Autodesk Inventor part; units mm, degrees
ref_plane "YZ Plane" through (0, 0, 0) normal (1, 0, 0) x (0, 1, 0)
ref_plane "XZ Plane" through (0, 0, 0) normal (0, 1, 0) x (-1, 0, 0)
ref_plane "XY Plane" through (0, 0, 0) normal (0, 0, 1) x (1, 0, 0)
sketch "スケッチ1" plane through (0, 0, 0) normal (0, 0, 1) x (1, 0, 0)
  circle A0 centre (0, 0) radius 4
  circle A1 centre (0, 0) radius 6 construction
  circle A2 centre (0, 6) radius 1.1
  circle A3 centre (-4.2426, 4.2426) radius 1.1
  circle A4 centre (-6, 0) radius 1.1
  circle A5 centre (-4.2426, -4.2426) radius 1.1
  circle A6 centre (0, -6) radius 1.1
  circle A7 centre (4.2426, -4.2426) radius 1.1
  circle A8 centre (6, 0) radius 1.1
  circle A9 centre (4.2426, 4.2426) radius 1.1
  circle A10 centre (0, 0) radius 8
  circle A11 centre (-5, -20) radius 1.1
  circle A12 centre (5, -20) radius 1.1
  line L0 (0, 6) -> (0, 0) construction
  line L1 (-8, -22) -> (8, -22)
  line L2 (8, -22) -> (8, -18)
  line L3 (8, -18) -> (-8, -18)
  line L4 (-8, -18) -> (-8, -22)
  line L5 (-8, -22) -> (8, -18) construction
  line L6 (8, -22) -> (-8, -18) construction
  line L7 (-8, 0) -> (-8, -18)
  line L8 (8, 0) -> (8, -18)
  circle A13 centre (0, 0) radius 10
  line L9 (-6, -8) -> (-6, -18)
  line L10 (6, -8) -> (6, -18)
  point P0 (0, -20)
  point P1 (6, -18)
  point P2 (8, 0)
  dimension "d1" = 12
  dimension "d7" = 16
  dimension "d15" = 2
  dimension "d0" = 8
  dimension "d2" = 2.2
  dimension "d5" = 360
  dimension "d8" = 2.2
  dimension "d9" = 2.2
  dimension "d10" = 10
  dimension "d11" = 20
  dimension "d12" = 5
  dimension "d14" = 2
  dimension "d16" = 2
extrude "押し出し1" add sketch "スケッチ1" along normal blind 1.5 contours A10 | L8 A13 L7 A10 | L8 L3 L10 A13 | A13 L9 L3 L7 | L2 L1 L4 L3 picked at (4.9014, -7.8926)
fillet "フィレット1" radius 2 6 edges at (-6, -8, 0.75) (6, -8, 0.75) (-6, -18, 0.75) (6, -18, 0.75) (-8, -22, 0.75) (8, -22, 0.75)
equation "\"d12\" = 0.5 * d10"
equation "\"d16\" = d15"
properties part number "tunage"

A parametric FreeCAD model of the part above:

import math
import FreeCAD as App
import Part
import Sketcher
Q = App.Units.Quantity


def edges_at(feature, points):
    """Names of the edges that pass closest to the given points."""
    edges = feature.Shape.Edges
    near = lambda p: min(range(len(edges)), key=lambda i: edges[i].distToShape(Part.Vertex(*p))[0])
    return sorted({f"Edge{near(p) + 1}" for p in points})

doc = App.newDocument("Part")
params = doc.addObject("Spreadsheet::Sheet", "Params")
for row, (alias, value) in enumerate([
    ("sketch1_diameter", "8 mm"),
    ("sketch1_radius", "8 mm"),
    ("sketch1_radius2", "10 mm"),
    ("sketch1_diameter2", "2.2 mm"),
    ("sketch1_width", "12 mm"),
    ("pad1_length", "1.5 mm"),
    ("fillet_radius", "2 mm"),
], start=1):
    params.set(f"A{row}", alias)
    params.set(f"B{row}", "=" + value)
    params.setAlias(f"B{row}", alias)

body = doc.addObject("PartDesign::Body", "Body")

sketch1 = body.newObject("Sketcher::SketchObject", "Sketch")
sketch1.AttachmentSupport = (doc.getObject("XY_Plane"), [""])
sketch1.MapMode = "FlatFace"
sketch1.addGeometry(Part.ArcOfCircle(Part.Circle(App.Vector(0, 0, 0), App.Vector(0, 0, 1), 8), math.radians(0), math.radians(180)), False)
sketch1.addGeometry(Part.LineSegment(App.Vector(-8, 0, 0), App.Vector(-8, -22, 0)), False)
sketch1.addGeometry(Part.LineSegment(App.Vector(-8, -22, 0), App.Vector(8, -22, 0)), False)
sketch1.addGeometry(Part.LineSegment(App.Vector(8, -22, 0), App.Vector(8, 0, 0)), False)
sketch1.addGeometry(Part.Circle(App.Vector(-6, 0, 0), App.Vector(0, 0, 1), 1.1), False)
sketch1.addGeometry(Part.Circle(App.Vector(-4.2, -4.2, 0), App.Vector(0, 0, 1), 1.1), False)
sketch1.addGeometry(Part.Circle(App.Vector(-4.2, 4.2, 0), App.Vector(0, 0, 1), 1.1), False)
sketch1.addGeometry(Part.Circle(App.Vector(0, -6, 0), App.Vector(0, 0, 1), 1.1), False)
sketch1.addGeometry(Part.Circle(App.Vector(4.2, -4.2, 0), App.Vector(0, 0, 1), 1.1), False)
sketch1.addGeometry(Part.Circle(App.Vector(0, 0, 0), App.Vector(0, 0, 1), 4), False)
sketch1.addGeometry(Part.Circle(App.Vector(6, 0, 0), App.Vector(0, 0, 1), 1.1), False)
sketch1.addGeometry(Part.Circle(App.Vector(4.2, 4.2, 0), App.Vector(0, 0, 1), 1.1), False)
sketch1.addGeometry(Part.Circle(App.Vector(0, 6, 0), App.Vector(0, 0, 1), 1.1), False)
sketch1.addGeometry(Part.ArcOfCircle(Part.Circle(App.Vector(0, 0, 0), App.Vector(0, 0, 1), 10), math.radians(-127), math.radians(-53)), False)
sketch1.addGeometry(Part.LineSegment(App.Vector(6, -8, 0), App.Vector(6, -18, 0)), False)
sketch1.addGeometry(Part.LineSegment(App.Vector(6, -18, 0), App.Vector(-6, -18, 0)), False)
sketch1.addGeometry(Part.LineSegment(App.Vector(-6, -18, 0), App.Vector(-6, -8, 0)), False)
sketch1.addGeometry(Part.Circle(App.Vector(-5, -20, 0), App.Vector(0, 0, 1), 1.1), False)
sketch1.addGeometry(Part.Circle(App.Vector(5, -20, 0), App.Vector(0, 0, 1), 1.1), False)
sketch1.addConstraint(Sketcher.Constraint("Tangent", 0, 2, 1, 1))
sketch1.addConstraint(Sketcher.Constraint("Coincident", 1, 2, 2, 1))
sketch1.addConstraint(Sketcher.Constraint("Coincident", 2, 2, 3, 1))
sketch1.addConstraint(Sketcher.Constraint("Tangent", 3, 2, 0, 1))
sketch1.addConstraint(Sketcher.Constraint("Coincident", 13, 2, 14, 1))
sketch1.addConstraint(Sketcher.Constraint("Coincident", 14, 2, 15, 1))
sketch1.addConstraint(Sketcher.Constraint("Coincident", 15, 2, 16, 1))
sketch1.addConstraint(Sketcher.Constraint("Coincident", 16, 2, 13, 1))
sketch1.addConstraint(Sketcher.Constraint("Vertical", 1))
sketch1.addConstraint(Sketcher.Constraint("Horizontal", 2))
sketch1.addConstraint(Sketcher.Constraint("Vertical", 3))
sketch1.addConstraint(Sketcher.Constraint("Vertical", 14))
sketch1.addConstraint(Sketcher.Constraint("Horizontal", 15))
sketch1.addConstraint(Sketcher.Constraint("Vertical", 16))
sketch1.addConstraint(Sketcher.Constraint("Coincident", 0, 3, -1, 1))
sketch1.addConstraint(Sketcher.Constraint("Coincident", 9, 3, -1, 1))
sketch1.addConstraint(Sketcher.Constraint("Coincident", 13, 3, -1, 1))
sketch1.addConstraint(Sketcher.Constraint("Equal", 4, 5))
sketch1.addConstraint(Sketcher.Constraint("Equal", 5, 6))
sketch1.addConstraint(Sketcher.Constraint("Equal", 6, 7))
sketch1.addConstraint(Sketcher.Constraint("Equal", 7, 8))
sketch1.addConstraint(Sketcher.Constraint("Equal", 8, 10))
sketch1.addConstraint(Sketcher.Constraint("Equal", 10, 11))
sketch1.addConstraint(Sketcher.Constraint("Equal", 11, 12))
sketch1.addConstraint(Sketcher.Constraint("Equal", 12, 17))
sketch1.addConstraint(Sketcher.Constraint("Equal", 17, 18))
sketch1.addConstraint(Sketcher.Constraint("Symmetric", 6, 3, 8, 3, -1, 1))
sketch1.addConstraint(Sketcher.Constraint("Symmetric", 4, 3, 10, 3, -1, 1))
sketch1.addConstraint(Sketcher.Constraint("Symmetric", 5, 3, 11, 3, -1, 1))
sketch1.addConstraint(Sketcher.Constraint("Symmetric", 7, 3, 12, 3, -1, 1))
sketch1.addConstraint(Sketcher.Constraint("Symmetric", 5, 3, 8, 3, -2))
sketch1.addConstraint(Sketcher.Constraint("Symmetric", 17, 3, 18, 3, -2))
sketch1.addConstraint(Sketcher.Constraint("PointOnObject", 4, 3, -1))
sketch1.addConstraint(Sketcher.Constraint("PointOnObject", 7, 3, -2))
sketch1.addConstraint(Sketcher.Constraint("Horizontal", 13, 2, 16, 2))
sketch1.addConstraint(Sketcher.Constraint("Vertical", 10, 3, 13, 2))
sketch1.addConstraint(Sketcher.Constraint("Diameter", 9, Q("8 mm")))
sketch1.addConstraint(Sketcher.Constraint("Radius", 0, Q("8 mm")))
sketch1.addConstraint(Sketcher.Constraint("Radius", 13, Q("10 mm")))
sketch1.addConstraint(Sketcher.Constraint("Diameter", 4, Q("2.2 mm")))
sketch1.addConstraint(Sketcher.Constraint("DistanceX", 15, 2, 15, 1, Q("12 mm")))
sketch1.addConstraint(Sketcher.Constraint("DistanceY", 14, 2, 14, 1, Q("10 mm")))
sketch1.addConstraint(Sketcher.Constraint("DistanceX", 17, 3, -1, 1, Q("5 mm")))
sketch1.addConstraint(Sketcher.Constraint("DistanceY", 17, 3, -1, 1, Q("20 mm")))
sketch1.addConstraint(Sketcher.Constraint("DistanceY", 1, 2, 17, 3, Q("2 mm")))
sketch1.addConstraint(Sketcher.Constraint("DistanceY", 1, 2, 7, 3, Q("16 mm")))
sketch1.addConstraint(Sketcher.Constraint("DistanceX", 5, 3, -1, 1, Q("4.2426 mm")))
sketch1.addConstraint(Sketcher.Constraint("DistanceY", 5, 3, -1, 1, Q("4.2426 mm")))
sketch1.setExpression("Constraints[36]", "Params.sketch1_diameter")
sketch1.setExpression("Constraints[37]", "Params.sketch1_radius")
sketch1.setExpression("Constraints[38]", "Params.sketch1_radius2")
sketch1.setExpression("Constraints[39]", "Params.sketch1_diameter2")
sketch1.setExpression("Constraints[40]", "Params.sketch1_width")
pad1 = body.newObject("PartDesign::Pad", "Pad")
pad1.Profile = sketch1
pad1.setExpression("Length", "Params.pad1_length")
doc.recompute()

fillet = body.newObject("PartDesign::Fillet", "Fillet")
fillet.Base = (pad1, edges_at(pad1, [
    (-6, -8, 0.75),
    (6, -8, 0.75),
    (-6, -18, 0.75),
    (6, -18, 0.75),
    (-8, -22, 0.75),
    (8, -22, 0.75),
]))
fillet.setExpression("Radius", "Params.fillet_radius")

doc.recompute()
